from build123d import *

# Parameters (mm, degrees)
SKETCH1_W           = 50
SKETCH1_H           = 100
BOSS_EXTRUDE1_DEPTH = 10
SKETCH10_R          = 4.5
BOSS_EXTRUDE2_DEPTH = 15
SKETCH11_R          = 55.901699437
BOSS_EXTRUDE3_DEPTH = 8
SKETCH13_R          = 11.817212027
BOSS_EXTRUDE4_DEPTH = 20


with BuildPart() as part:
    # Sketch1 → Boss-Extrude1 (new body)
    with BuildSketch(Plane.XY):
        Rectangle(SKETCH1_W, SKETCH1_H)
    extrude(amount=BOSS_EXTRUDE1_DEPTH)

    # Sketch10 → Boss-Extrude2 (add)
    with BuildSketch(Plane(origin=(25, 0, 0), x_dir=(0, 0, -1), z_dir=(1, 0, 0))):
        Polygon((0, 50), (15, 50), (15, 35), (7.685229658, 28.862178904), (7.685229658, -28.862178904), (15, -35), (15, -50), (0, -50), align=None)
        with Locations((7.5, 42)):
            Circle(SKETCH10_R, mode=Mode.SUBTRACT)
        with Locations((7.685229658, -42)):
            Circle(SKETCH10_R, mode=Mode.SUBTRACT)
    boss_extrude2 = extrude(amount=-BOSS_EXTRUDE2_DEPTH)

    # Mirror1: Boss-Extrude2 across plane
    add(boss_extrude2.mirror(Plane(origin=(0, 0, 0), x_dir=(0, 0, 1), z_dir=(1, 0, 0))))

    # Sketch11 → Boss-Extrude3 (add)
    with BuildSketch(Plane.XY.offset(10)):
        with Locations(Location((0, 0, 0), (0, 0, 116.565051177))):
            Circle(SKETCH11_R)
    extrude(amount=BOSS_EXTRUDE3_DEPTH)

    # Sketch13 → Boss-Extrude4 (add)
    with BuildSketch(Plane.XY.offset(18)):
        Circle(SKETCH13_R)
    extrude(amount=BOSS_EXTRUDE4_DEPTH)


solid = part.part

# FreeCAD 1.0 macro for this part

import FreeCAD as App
import Part
import Sketcher
from FreeCAD import Vector
Q = App.Units.Quantity

doc = App.newDocument("Part")
params = doc.addObject("Spreadsheet::Sheet", "Params")
for row, (alias, value) in enumerate([
    ("sketch1_width", "50 mm"),
    ("sketch1_height", "100 mm"),
    ("pad1_length", "10 mm"),
    ("sketch2_diameter", "9 mm"),
    ("sketch2_width", "100 mm"),
    ("sketch2_width2", "15 mm"),
    ("pad2_length", "15 mm"),
    ("pad3_length", "8 mm"),
    ("pad4_length", "20 mm"),
], start=1):
    params.set(f"A{row}", alias)
    params.set(f"B{row}", "=" + value)
    params.setAlias(f"B{row}", alias)

body = doc.addObject("PartDesign::Body", "Body")

# Sketch on XY plane
sketch1 = doc.addObject("Sketcher::SketchObject", "Sketch")
body.addObject(sketch1)
sketch1.AttachmentSupport = (doc.XY_Plane, [""])
sketch1.MapMode = "FlatFace"
sketch1.addGeometry(Part.LineSegment(Vector(-25, 50, 0), Vector(-25, -50, 0)), False)
sketch1.addGeometry(Part.LineSegment(Vector(-25, -50, 0), Vector(25, -50, 0)), False)
sketch1.addGeometry(Part.LineSegment(Vector(25, -50, 0), Vector(25, 50, 0)), False)
sketch1.addGeometry(Part.LineSegment(Vector(25, 50, 0), Vector(-25, 50, 0)), False)
sketch1.addConstraint(Sketcher.Constraint("Coincident", 0, 2, 1, 1))
sketch1.addConstraint(Sketcher.Constraint("Coincident", 1, 2, 2, 1))
sketch1.addConstraint(Sketcher.Constraint("Coincident", 2, 2, 3, 1))
sketch1.addConstraint(Sketcher.Constraint("Coincident", 3, 2, 0, 1))
sketch1.addConstraint(Sketcher.Constraint("Vertical", 0))
sketch1.addConstraint(Sketcher.Constraint("Horizontal", 1))
sketch1.addConstraint(Sketcher.Constraint("Vertical", 2))
sketch1.addConstraint(Sketcher.Constraint("Horizontal", 3))
sketch1.addConstraint(Sketcher.Constraint("Symmetric", 0, 2, 2, 2, -1, 1))
sketch1.addConstraint(Sketcher.Constraint("DistanceX", 1, 1, 1, 2, Q("50 mm")))
sketch1.addConstraint(Sketcher.Constraint("DistanceY", 0, 2, 0, 1, Q("100 mm")))
sketch1.setExpression("Constraints[9]", "Params.sketch1_width")
sketch1.setExpression("Constraints[10]", "Params.sketch1_height")
pad1 = doc.addObject("PartDesign::Pad", "Pad")
body.addObject(pad1)
pad1.Profile = sketch1
pad1.setExpression("Length", "Params.pad1_length")

# Sketch on YZ plane
sketch2 = doc.addObject("Sketcher::SketchObject", "Sketch001")
body.addObject(sketch2)
sketch2.AttachmentSupport = (doc.YZ_Plane, [""])
sketch2.MapMode = "FlatFace"
sketch2.AttachmentOffset = App.Placement(Vector(0, 0, 25), App.Rotation())
sketch2.addGeometry(Part.LineSegment(Vector(50, -15, 0), Vector(50, 0, 0)), False)
sketch2.addGeometry(Part.LineSegment(Vector(50, 0, 0), Vector(-50, 0, 0)), False)
sketch2.addGeometry(Part.LineSegment(Vector(-50, 0, 0), Vector(-50, -15, 0)), False)
sketch2.addGeometry(Part.LineSegment(Vector(-50, -15, 0), Vector(-35, -15, 0)), False)
sketch2.addGeometry(Part.LineSegment(Vector(-35, -15, 0), Vector(-28.862179, -7.68523, 0)), False)
sketch2.addGeometry(Part.LineSegment(Vector(-28.862179, -7.68523, 0), Vector(28.862179, -7.68523, 0)), False)
sketch2.addGeometry(Part.LineSegment(Vector(28.862179, -7.68523, 0), Vector(35, -15, 0)), False)
sketch2.addGeometry(Part.LineSegment(Vector(35, -15, 0), Vector(50, -15, 0)), False)
sketch2.addGeometry(Part.Circle(Vector(-42, -7.68523, 0), Vector(0, 0, 1), 4.5), False)
sketch2.addGeometry(Part.Circle(Vector(42, -7.5, 0), Vector(0, 0, 1), 4.5), False)
sketch2.addConstraint(Sketcher.Constraint("Coincident", 0, 2, 1, 1))
sketch2.addConstraint(Sketcher.Constraint("Coincident", 1, 2, 2, 1))
sketch2.addConstraint(Sketcher.Constraint("Coincident", 2, 2, 3, 1))
sketch2.addConstraint(Sketcher.Constraint("Coincident", 3, 2, 4, 1))
sketch2.addConstraint(Sketcher.Constraint("Coincident", 4, 2, 5, 1))
sketch2.addConstraint(Sketcher.Constraint("Coincident", 5, 2, 6, 1))
sketch2.addConstraint(Sketcher.Constraint("Coincident", 6, 2, 7, 1))
sketch2.addConstraint(Sketcher.Constraint("Coincident", 7, 2, 0, 1))
sketch2.addConstraint(Sketcher.Constraint("Vertical", 0))
sketch2.addConstraint(Sketcher.Constraint("Horizontal", 1))
sketch2.addConstraint(Sketcher.Constraint("Vertical", 2))
sketch2.addConstraint(Sketcher.Constraint("Horizontal", 3))
sketch2.addConstraint(Sketcher.Constraint("Horizontal", 5))
sketch2.addConstraint(Sketcher.Constraint("Horizontal", 7))
sketch2.addConstraint(Sketcher.Constraint("Equal", 8, 9))
sketch2.addConstraint(Sketcher.Constraint("Symmetric", 0, 2, 1, 2, -1, 1))
sketch2.addConstraint(Sketcher.Constraint("Symmetric", 3, 2, 6, 2, -2))
sketch2.addConstraint(Sketcher.Constraint("Horizontal", 8, 3, 4, 2))
sketch2.addConstraint(Sketcher.Constraint("Equal", 7, 0))
sketch2.addConstraint(Sketcher.Constraint("Equal", 4, 6))
sketch2.addConstraint(Sketcher.Constraint("Diameter", 8, Q("9 mm")))
sketch2.addConstraint(Sketcher.Constraint("DistanceX", 1, 2, 1, 1, Q("100 mm")))
sketch2.addConstraint(Sketcher.Constraint("DistanceX", 3, 1, 3, 2, Q("15 mm")))
sketch2.addConstraint(Sketcher.Constraint("Angle", 4, Q("50 deg")))
sketch2.addConstraint(Sketcher.Constraint("DistanceX", 8, 3, -1, 1, Q("42 mm")))
sketch2.addConstraint(Sketcher.Constraint("DistanceX", -1, 1, 9, 3, Q("42 mm")))
sketch2.addConstraint(Sketcher.Constraint("DistanceY", 9, 3, -1, 1, Q("7.5 mm")))
sketch2.addConstraint(Sketcher.Constraint("DistanceX", 5, 1, 5, 2, Q("57.724358 mm")))
sketch2.setExpression("Constraints[20]", "Params.sketch2_diameter")
sketch2.setExpression("Constraints[21]", "Params.sketch2_width")
sketch2.setExpression("Constraints[22]", "Params.sketch2_width2")
pad2 = doc.addObject("PartDesign::Pad", "Pad001")
body.addObject(pad2)
pad2.Profile = sketch2
pad2.setExpression("Length", "Params.pad2_length")
pad2.Reversed = True
doc.recompute()

mirrored = doc.addObject("PartDesign::Mirrored", "Mirrored")
body.addObject(mirrored)
mirrored.Originals = [pad2]
mirrored.MirrorPlane = (doc.YZ_Plane, [""])
body.Tip = mirrored

# Sketch on XY plane
sketch3 = doc.addObject("Sketcher::SketchObject", "Sketch002")
body.addObject(sketch3)
sketch3.AttachmentSupport = (doc.XY_Plane, [""])
sketch3.MapMode = "FlatFace"
sketch3.AttachmentOffset = App.Placement(Vector(0, 0, 10), App.Rotation())
sketch3.addGeometry(Part.Circle(Vector(0, 0, 0), Vector(0, 0, 1), 55.901699), False)
sketch3.addConstraint(Sketcher.Constraint("Coincident", 0, 3, -1, 1))
sketch3.addConstraint(Sketcher.Constraint("Diameter", 0, Q("111.803399 mm")))
pad3 = doc.addObject("PartDesign::Pad", "Pad002")
body.addObject(pad3)
pad3.Profile = sketch3
pad3.setExpression("Length", "Params.pad3_length")

# Sketch on XY plane
sketch4 = doc.addObject("Sketcher::SketchObject", "Sketch003")
body.addObject(sketch4)
sketch4.AttachmentSupport = (doc.XY_Plane, [""])
sketch4.MapMode = "FlatFace"
sketch4.AttachmentOffset = App.Placement(Vector(0, 0, 18), App.Rotation())
sketch4.addGeometry(Part.Circle(Vector(0, 0, 0), Vector(0, 0, 1), 11.817212), False)
sketch4.addConstraint(Sketcher.Constraint("Coincident", 0, 3, -1, 1))
sketch4.addConstraint(Sketcher.Constraint("Diameter", 0, Q("23.634424 mm")))
pad4 = doc.addObject("PartDesign::Pad", "Pad003")
body.addObject(pad4)
pad4.Profile = sketch4
pad4.setExpression("Length", "Params.pad4_length")

doc.recompute()
